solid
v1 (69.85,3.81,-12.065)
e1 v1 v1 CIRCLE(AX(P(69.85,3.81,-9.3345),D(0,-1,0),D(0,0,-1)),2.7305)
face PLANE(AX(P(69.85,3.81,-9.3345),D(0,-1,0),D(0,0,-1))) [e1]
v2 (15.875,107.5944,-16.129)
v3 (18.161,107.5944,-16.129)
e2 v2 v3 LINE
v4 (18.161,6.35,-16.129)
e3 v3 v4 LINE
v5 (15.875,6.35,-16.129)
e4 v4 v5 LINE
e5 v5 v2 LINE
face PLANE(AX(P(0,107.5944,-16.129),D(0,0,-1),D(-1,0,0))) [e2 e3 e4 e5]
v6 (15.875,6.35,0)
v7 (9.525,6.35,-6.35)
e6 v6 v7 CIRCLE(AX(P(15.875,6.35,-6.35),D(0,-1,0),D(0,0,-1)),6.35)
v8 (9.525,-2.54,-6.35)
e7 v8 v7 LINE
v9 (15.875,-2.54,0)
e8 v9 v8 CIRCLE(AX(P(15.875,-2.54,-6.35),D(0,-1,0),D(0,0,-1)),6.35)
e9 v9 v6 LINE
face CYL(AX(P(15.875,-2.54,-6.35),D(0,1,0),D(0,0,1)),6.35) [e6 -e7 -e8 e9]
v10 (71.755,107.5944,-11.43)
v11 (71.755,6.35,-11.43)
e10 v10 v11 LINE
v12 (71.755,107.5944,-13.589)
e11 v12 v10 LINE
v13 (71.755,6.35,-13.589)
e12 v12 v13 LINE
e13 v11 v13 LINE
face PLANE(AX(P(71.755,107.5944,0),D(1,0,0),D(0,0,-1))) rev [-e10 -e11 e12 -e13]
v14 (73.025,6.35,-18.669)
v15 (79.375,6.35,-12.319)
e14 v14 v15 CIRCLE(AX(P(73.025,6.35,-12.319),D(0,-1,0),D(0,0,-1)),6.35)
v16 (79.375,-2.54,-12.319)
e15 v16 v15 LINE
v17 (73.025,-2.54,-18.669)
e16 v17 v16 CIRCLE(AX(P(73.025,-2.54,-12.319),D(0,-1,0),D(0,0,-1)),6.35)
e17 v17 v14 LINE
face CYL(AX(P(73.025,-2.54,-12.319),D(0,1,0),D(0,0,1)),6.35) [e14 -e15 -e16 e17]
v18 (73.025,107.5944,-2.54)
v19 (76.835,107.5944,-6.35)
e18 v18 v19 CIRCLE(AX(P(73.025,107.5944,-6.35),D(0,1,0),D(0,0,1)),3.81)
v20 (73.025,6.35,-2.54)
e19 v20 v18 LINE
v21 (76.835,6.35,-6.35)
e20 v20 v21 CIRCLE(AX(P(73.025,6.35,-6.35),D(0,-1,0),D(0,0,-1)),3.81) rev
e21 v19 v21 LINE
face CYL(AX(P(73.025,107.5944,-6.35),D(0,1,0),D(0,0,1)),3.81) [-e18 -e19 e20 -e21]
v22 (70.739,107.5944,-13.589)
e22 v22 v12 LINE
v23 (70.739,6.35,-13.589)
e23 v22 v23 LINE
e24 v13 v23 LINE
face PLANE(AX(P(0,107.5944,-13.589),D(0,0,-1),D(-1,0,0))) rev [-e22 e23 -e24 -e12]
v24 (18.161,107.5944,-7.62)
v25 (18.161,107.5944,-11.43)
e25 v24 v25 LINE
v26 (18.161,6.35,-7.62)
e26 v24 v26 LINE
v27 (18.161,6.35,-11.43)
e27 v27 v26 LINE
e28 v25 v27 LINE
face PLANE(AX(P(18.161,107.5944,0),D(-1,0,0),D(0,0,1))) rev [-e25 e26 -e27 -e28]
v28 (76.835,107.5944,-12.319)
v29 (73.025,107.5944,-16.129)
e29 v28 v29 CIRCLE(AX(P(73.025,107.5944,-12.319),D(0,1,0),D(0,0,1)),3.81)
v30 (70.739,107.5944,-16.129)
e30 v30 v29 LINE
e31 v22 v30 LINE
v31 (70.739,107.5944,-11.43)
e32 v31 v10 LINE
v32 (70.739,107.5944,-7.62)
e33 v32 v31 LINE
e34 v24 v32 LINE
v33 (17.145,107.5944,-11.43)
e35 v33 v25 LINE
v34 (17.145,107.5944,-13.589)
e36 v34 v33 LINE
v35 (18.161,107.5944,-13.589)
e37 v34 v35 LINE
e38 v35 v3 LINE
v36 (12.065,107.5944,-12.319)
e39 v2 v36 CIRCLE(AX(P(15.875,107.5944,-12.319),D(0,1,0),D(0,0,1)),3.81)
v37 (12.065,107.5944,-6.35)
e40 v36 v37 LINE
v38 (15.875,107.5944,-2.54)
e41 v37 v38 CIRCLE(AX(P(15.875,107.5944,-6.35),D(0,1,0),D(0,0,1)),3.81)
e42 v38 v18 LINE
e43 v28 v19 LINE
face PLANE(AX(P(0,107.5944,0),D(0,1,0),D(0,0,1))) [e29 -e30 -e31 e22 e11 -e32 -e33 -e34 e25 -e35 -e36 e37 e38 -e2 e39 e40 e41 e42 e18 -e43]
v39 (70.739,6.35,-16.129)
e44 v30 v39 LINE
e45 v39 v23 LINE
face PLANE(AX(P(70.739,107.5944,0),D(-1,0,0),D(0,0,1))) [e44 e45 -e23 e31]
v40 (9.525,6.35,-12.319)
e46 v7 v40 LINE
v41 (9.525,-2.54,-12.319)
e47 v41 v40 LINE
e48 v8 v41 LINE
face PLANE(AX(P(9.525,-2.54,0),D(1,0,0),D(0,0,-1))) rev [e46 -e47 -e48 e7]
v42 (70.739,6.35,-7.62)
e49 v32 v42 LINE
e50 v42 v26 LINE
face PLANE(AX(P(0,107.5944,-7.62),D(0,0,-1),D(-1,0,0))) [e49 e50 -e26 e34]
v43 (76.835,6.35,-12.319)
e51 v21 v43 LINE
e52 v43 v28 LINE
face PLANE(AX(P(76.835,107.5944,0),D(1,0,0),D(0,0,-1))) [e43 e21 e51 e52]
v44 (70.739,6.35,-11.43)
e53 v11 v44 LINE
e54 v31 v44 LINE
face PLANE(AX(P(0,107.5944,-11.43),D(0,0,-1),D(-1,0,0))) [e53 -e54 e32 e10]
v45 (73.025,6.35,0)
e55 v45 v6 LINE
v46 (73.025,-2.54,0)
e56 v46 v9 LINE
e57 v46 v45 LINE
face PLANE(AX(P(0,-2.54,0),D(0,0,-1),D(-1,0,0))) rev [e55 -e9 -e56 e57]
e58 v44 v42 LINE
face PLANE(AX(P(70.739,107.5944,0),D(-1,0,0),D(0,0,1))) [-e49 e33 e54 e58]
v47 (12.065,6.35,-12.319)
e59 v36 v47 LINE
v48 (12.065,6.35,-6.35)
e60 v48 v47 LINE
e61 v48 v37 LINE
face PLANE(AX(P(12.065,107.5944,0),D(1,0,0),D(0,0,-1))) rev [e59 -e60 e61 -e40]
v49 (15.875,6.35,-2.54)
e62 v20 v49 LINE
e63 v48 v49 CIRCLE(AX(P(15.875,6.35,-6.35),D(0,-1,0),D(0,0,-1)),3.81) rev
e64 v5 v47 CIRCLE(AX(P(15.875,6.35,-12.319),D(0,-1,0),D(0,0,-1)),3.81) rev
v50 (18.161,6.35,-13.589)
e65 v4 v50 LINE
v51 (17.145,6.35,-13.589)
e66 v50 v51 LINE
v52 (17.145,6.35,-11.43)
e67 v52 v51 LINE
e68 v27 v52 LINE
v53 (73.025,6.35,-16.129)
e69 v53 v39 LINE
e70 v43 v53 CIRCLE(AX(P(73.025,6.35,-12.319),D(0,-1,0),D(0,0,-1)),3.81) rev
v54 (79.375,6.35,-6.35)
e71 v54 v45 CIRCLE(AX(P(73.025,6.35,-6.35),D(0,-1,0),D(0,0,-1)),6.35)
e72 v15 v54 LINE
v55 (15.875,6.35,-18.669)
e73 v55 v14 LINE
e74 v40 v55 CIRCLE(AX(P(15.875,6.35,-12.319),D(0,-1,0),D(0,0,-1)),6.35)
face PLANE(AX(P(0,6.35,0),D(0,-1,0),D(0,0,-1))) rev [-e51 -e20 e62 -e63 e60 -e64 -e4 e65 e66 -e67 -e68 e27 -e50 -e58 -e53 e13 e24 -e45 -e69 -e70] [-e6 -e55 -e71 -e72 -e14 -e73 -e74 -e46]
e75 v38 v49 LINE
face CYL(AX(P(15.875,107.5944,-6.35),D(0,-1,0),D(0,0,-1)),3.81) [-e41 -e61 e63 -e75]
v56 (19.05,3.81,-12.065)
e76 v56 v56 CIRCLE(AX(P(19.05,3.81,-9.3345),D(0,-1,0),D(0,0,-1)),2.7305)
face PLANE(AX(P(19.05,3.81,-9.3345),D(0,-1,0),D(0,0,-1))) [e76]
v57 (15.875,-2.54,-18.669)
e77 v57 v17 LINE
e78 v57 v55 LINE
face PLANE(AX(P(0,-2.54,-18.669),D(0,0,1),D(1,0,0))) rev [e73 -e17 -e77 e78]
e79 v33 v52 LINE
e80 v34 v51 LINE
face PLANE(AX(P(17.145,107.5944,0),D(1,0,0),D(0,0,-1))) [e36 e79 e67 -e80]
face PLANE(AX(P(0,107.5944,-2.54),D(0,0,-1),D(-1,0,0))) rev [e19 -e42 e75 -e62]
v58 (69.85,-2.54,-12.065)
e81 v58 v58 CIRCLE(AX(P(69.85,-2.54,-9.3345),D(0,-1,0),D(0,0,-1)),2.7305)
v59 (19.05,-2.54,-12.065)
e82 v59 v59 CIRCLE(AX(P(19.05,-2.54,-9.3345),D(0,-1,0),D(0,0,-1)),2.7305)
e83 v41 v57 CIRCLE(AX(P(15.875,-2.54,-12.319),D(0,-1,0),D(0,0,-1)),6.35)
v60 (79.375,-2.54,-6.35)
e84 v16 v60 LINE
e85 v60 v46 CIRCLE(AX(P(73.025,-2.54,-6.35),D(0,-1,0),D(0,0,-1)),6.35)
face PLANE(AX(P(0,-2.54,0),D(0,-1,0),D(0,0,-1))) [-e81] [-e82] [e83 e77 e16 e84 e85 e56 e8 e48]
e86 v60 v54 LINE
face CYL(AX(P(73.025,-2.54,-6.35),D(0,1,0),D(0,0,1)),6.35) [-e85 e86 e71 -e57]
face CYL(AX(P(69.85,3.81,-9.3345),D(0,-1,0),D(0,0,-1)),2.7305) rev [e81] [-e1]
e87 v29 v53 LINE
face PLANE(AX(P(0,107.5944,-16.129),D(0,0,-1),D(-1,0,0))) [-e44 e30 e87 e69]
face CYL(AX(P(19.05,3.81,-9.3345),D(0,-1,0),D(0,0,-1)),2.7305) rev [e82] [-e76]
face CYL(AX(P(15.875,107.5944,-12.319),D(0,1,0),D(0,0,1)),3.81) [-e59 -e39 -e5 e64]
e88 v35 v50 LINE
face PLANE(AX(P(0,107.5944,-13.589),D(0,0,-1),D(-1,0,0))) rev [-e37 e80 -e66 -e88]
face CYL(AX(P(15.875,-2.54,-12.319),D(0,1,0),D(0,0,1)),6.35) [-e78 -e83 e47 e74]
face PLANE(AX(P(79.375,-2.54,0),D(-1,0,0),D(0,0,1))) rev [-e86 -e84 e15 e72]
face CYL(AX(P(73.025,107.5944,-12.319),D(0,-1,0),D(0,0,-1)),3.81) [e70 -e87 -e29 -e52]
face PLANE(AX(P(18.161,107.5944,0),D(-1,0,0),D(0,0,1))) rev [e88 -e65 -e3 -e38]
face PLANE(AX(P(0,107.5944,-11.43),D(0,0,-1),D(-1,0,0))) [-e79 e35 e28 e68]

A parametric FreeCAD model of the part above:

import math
import FreeCAD as App
import Part
import Sketcher
from FreeCAD import Vector
Q = App.Units.Quantity


def edges_at(feature, points):
    """Names of the edges that pass closest to the given points."""
    edges = feature.Shape.Edges
    near = lambda p: min(range(len(edges)), key=lambda i: edges[i].distToShape(Part.Vertex(*p))[0])
    return sorted({f"Edge{near(p) + 1}" for p in points})

doc = App.newDocument("Part")
params = doc.addObject("Spreadsheet::Sheet", "Params")
for row, (alias, value) in enumerate([
    ("sketch1_height", "6 in"),
    ("sketch1_width", "3.5 in"),
    ("pad1_length", "0.236 in"),
    ("sketch2_diameter", "0.215 in"),
    ("sketch3_height", "0.1 in"),
    ("sketch3_width", "0.24 in"),
    ("sketch3_width2", "2.55 in"),
    ("sketch3_width3", "0.04 in"),
    ("sketch3_height2", "0.15 in"),
    ("pad2_length", "4 in"),
    ("fillet_radius", "0.15 in"),
    ("sketch4_height", "6 in"),
    ("sketch4_width", "0.1 in"),
    ("sketch5_height", "6 in"),
    ("sketch5_width", "3.4 in"),
    ("pocket3_length", "0.25 in"),
    ("sketch6_radius", "0.25 in"),
    ("sketch6_width", "2.25 in"),
    ("sketch6_height", "0.235 in"),
    ("pad3_length", "0.35 in"),
    ("sketch7_diameter", "0.215 in"),
    ("pocket4_length", "0.25 in"),
], start=1):
    params.set(f"A{row}", alias)
    params.set(f"B{row}", "=" + value)
    params.setAlias(f"B{row}", alias)

body = doc.addObject("PartDesign::Body", "Body")

# Sketch on XZ plane
sketch1 = body.newObject("Sketcher::SketchObject", "Sketch")
sketch1.AttachmentSupport = (doc.getObject("XZ_Plane"), [""])
sketch1.MapMode = "FlatFace"
sketch1.addGeometry(Part.LineSegment(Vector(0, -152, 0), Vector(0, 0, 0)), False)
sketch1.addGeometry(Part.LineSegment(Vector(0, 0, 0), Vector(89, 0, 0)), False)
sketch1.addGeometry(Part.LineSegment(Vector(89, 0, 0), Vector(89, -152, 0)), False)
sketch1.addGeometry(Part.LineSegment(Vector(89, -152, 0), Vector(0, -152, 0)), False)
sketch1.addConstraint(Sketcher.Constraint("Coincident", 0, 2, 1, 1))
sketch1.addConstraint(Sketcher.Constraint("Coincident", 1, 2, 2, 1))
sketch1.addConstraint(Sketcher.Constraint("Coincident", 2, 2, 3, 1))
sketch1.addConstraint(Sketcher.Constraint("Coincident", 3, 2, 0, 1))
sketch1.addConstraint(Sketcher.Constraint("Vertical", 0))
sketch1.addConstraint(Sketcher.Constraint("Horizontal", 1))
sketch1.addConstraint(Sketcher.Constraint("Vertical", 2))
sketch1.addConstraint(Sketcher.Constraint("Horizontal", 3))
sketch1.addConstraint(Sketcher.Constraint("Coincident", 0, 2, -1, 1))
sketch1.addConstraint(Sketcher.Constraint("DistanceY", 0, 1, 0, 2, Q("6 in")))
sketch1.addConstraint(Sketcher.Constraint("DistanceX", 1, 1, 1, 2, Q("3.5 in")))
sketch1.setExpression("Constraints[9]", "Params.sketch1_height")
sketch1.setExpression("Constraints[10]", "Params.sketch1_width")
pad1 = body.newObject("PartDesign::Pad", "Pad")
pad1.Profile = sketch1
pad1.setExpression("Length", "Params.pad1_length")
pad1.Reversed = True

# Sketch on XZ plane
sketch2 = body.newObject("Sketcher::SketchObject", "Sketch001")
sketch2.AttachmentSupport = (doc.getObject("XZ_Plane"), [""])
sketch2.MapMode = "FlatFace"
sketch2.AttachmentOffset = App.Placement(Vector(0, 0, -0.236 * 25.4), App.Rotation())
sketch2.addGeometry(Part.Circle(Vector(45.7, -109.9, 0), Vector(0, 0, 1), 2.7), False)
sketch2.addGeometry(Part.Circle(Vector(45.7, -33.7, 0), Vector(0, 0, 1), 2.7), False)
sketch2.addConstraint(Sketcher.Constraint("Equal", 0, 1))
sketch2.addConstraint(Sketcher.Constraint("Vertical", 0, 3, 1, 3))
sketch2.addConstraint(Sketcher.Constraint("Diameter", 0, Q("0.215 in")))
sketch2.addConstraint(Sketcher.Constraint("DistanceY", 0, 3, 1, 3, Q("3 in")))
sketch2.addConstraint(Sketcher.Constraint("DistanceX", -1, 1, 0, 3, Q("1.8 in")))
sketch2.addConstraint(Sketcher.Constraint("DistanceY", 0, 3, -1, 1, Q("109.871331 mm")))
sketch2.setExpression("Constraints[2]", "Params.sketch2_diameter")
pocket1 = body.newObject("PartDesign::Pocket", "Pocket")
pocket1.Profile = sketch2
pocket1.Type = "ThroughAll"
pocket1.Midplane = True

# Sketch on XZ plane
sketch3 = body.newObject("Sketcher::SketchObject", "Sketch002")
sketch3.AttachmentSupport = (doc.getObject("XZ_Plane"), [""])
sketch3.MapMode = "FlatFace"
sketch3.AttachmentOffset = App.Placement(Vector(0, 0, -0.236 * 25.4), App.Rotation())
sketch3.addGeometry(Part.LineSegment(Vector(18.2, -16.1, 0), Vector(12.1, -16.1, 0)), False)
sketch3.addGeometry(Part.LineSegment(Vector(12.1, -16.1, 0), Vector(12.1, -2.5, 0)), False)
sketch3.addGeometry(Part.LineSegment(Vector(12.1, -2.5, 0), Vector(76.8, -2.5, 0)), False)
sketch3.addGeometry(Part.LineSegment(Vector(76.8, -2.5, 0), Vector(76.8, -16.1, 0)), False)
sketch3.addGeometry(Part.LineSegment(Vector(76.8, -16.1, 0), Vector(70.7, -16.1, 0)), False)
sketch3.addGeometry(Part.LineSegment(Vector(70.7, -16.1, 0), Vector(70.7, -13.6, 0)), False)
sketch3.addGeometry(Part.LineSegment(Vector(70.7, -13.6, 0), Vector(71.8, -13.6, 0)), False)
sketch3.addGeometry(Part.LineSegment(Vector(71.8, -13.6, 0), Vector(71.8, -11.4, 0)), False)
sketch3.addGeometry(Part.LineSegment(Vector(71.8, -11.4, 0), Vector(70.7, -11.4, 0)), False)
sketch3.addGeometry(Part.LineSegment(Vector(70.7, -11.4, 0), Vector(70.7, -7.6, 0)), False)
sketch3.addGeometry(Part.LineSegment(Vector(70.7, -7.6, 0), Vector(18.2, -7.6, 0)), False)
sketch3.addGeometry(Part.LineSegment(Vector(18.2, -7.6, 0), Vector(18.2, -11.4, 0)), False)
sketch3.addGeometry(Part.LineSegment(Vector(18.2, -11.4, 0), Vector(17.1, -11.4, 0)), False)
sketch3.addGeometry(Part.LineSegment(Vector(17.1, -11.4, 0), Vector(17.1, -13.6, 0)), False)
sketch3.addGeometry(Part.LineSegment(Vector(17.1, -13.6, 0), Vector(18.2, -13.6, 0)), False)
sketch3.addGeometry(Part.LineSegment(Vector(18.2, -13.6, 0), Vector(18.2, -16.1, 0)), False)
sketch3.addConstraint(Sketcher.Constraint("Coincident", 0, 2, 1, 1))
sketch3.addConstraint(Sketcher.Constraint("Coincident", 1, 2, 2, 1))
sketch3.addConstraint(Sketcher.Constraint("Coincident", 2, 2, 3, 1))
sketch3.addConstraint(Sketcher.Constraint("Coincident", 3, 2, 4, 1))
sketch3.addConstraint(Sketcher.Constraint("Coincident", 4, 2, 5, 1))
sketch3.addConstraint(Sketcher.Constraint("Coincident", 5, 2, 6, 1))
sketch3.addConstraint(Sketcher.Constraint("Coincident", 6, 2, 7, 1))
sketch3.addConstraint(Sketcher.Constraint("Coincident", 7, 2, 8, 1))
sketch3.addConstraint(Sketcher.Constraint("Coincident", 8, 2, 9, 1))
sketch3.addConstraint(Sketcher.Constraint("Coincident", 9, 2, 10, 1))
sketch3.addConstraint(Sketcher.Constraint("Coincident", 10, 2, 11, 1))
sketch3.addConstraint(Sketcher.Constraint("Coincident", 11, 2, 12, 1))
sketch3.addConstraint(Sketcher.Constraint("Coincident", 12, 2, 13, 1))
sketch3.addConstraint(Sketcher.Constraint("Coincident", 13, 2, 14, 1))
sketch3.addConstraint(Sketcher.Constraint("Coincident", 14, 2, 15, 1))
sketch3.addConstraint(Sketcher.Constraint("Coincident", 15, 2, 0, 1))
sketch3.addConstraint(Sketcher.Constraint("Horizontal", 0))
sketch3.addConstraint(Sketcher.Constraint("Vertical", 1))
sketch3.addConstraint(Sketcher.Constraint("Horizontal", 2))
sketch3.addConstraint(Sketcher.Constraint("Vertical", 3))
sketch3.addConstraint(Sketcher.Constraint("Horizontal", 4))
sketch3.addConstraint(Sketcher.Constraint("Vertical", 5))
sketch3.addConstraint(Sketcher.Constraint("Horizontal", 6))
sketch3.addConstraint(Sketcher.Constraint("Vertical", 7))
sketch3.addConstraint(Sketcher.Constraint("Horizontal", 8))
sketch3.addConstraint(Sketcher.Constraint("Vertical", 9))
sketch3.addConstraint(Sketcher.Constraint("Horizontal", 10))
sketch3.addConstraint(Sketcher.Constraint("Vertical", 11))
sketch3.addConstraint(Sketcher.Constraint("Horizontal", 12))
sketch3.addConstraint(Sketcher.Constraint("Vertical", 13))
sketch3.addConstraint(Sketcher.Constraint("Horizontal", 14))
sketch3.addConstraint(Sketcher.Constraint("Vertical", 15))
sketch3.addConstraint(Sketcher.Constraint("Horizontal", 0, 2, 3, 2))
sketch3.addConstraint(Sketcher.Constraint("Horizontal", 8, 2, 11, 2))
sketch3.addConstraint(Sketcher.Constraint("Horizontal", 6, 2, 13, 2))
sketch3.addConstraint(Sketcher.Constraint("Vertical", 5, 2, 8, 2))
sketch3.addConstraint(Sketcher.Constraint("Vertical", 11, 2, 14, 2))
sketch3.addConstraint(Sketcher.Constraint("Equal", 0, 4))
sketch3.addConstraint(Sketcher.Constraint("Equal", 8, 12))
sketch3.addConstraint(Sketcher.Constraint("DistanceY", 5, 1, 5, 2, Q("0.1 in")))
sketch3.addConstraint(Sketcher.Constraint("DistanceX", 0, 2, 0, 1, Q("0.24 in")))
sketch3.addConstraint(Sketcher.Constraint("DistanceX", 2, 1, 2, 2, Q("2.55 in")))
sketch3.addConstraint(Sketcher.Constraint("DistanceX", 6, 1, 6, 2, Q("0.04 in")))
sketch3.addConstraint(Sketcher.Constraint("DistanceY", 9, 1, 9, 2, Q("0.15 in")))
sketch3.addConstraint(Sketcher.Constraint("DistanceY", 1, 2, -1, 1, Q("0.1 in")))
sketch3.addConstraint(Sketcher.Constraint("DistanceY", 9, 2, -1, 1, Q("0.3 in")))
sketch3.addConstraint(Sketcher.Constraint("DistanceY", 1, 1, 1, 2, Q("0.535 in")))
sketch3.addConstraint(Sketcher.Constraint("DistanceX", -1, 1, 0, 2, Q("0.475 in")))
sketch3.setExpression("Constraints[39]", "Params.sketch3_height")
sketch3.setExpression("Constraints[40]", "Params.sketch3_width")
sketch3.setExpression("Constraints[41]", "Params.sketch3_width2")
sketch3.setExpression("Constraints[42]", "Params.sketch3_width3")
sketch3.setExpression("Constraints[43]", "Params.sketch3_height2")
pad2 = body.newObject("PartDesign::Pad", "Pad001")
pad2.Profile = sketch3
pad2.setExpression("Length", "Params.pad2_length")
pad2.Reversed = True
doc.recompute()

fillet = body.newObject("PartDesign::Fillet", "Fillet")
fillet.Base = (pad2, edges_at(pad2, [
    (12.065, 56.794, -16.129),
    (12.065, 56.794, -2.54),
    (76.835, 56.794, -2.54),
    (76.835, 56.794, -16.129),
]))
fillet.setExpression("Radius", "Params.fillet_radius")

# Sketch on XZ plane
sketch4 = body.newObject("Sketcher::SketchObject", "Sketch003")
sketch4.AttachmentSupport = (doc.getObject("XZ_Plane"), [""])
sketch4.MapMode = "FlatFace"
sketch4.AttachmentOffset = App.Placement(Vector(0, 0, -0.236 * 25.4), App.Rotation())
sketch4.addGeometry(Part.LineSegment(Vector(0, -152.4, 0), Vector(0, 0, 0)), False)
sketch4.addGeometry(Part.LineSegment(Vector(0, 0, 0), Vector(2.5, 0, 0)), False)
sketch4.addGeometry(Part.LineSegment(Vector(2.5, 0, 0), Vector(2.5, -152.4, 0)), False)
sketch4.addGeometry(Part.LineSegment(Vector(2.5, -152.4, 0), Vector(0, -152.4, 0)), False)
sketch4.addConstraint(Sketcher.Constraint("Coincident", 0, 2, 1, 1))
sketch4.addConstraint(Sketcher.Constraint("Coincident", 1, 2, 2, 1))
sketch4.addConstraint(Sketcher.Constraint("Coincident", 2, 2, 3, 1))
sketch4.addConstraint(Sketcher.Constraint("Coincident", 3, 2, 0, 1))
sketch4.addConstraint(Sketcher.Constraint("Vertical", 0))
sketch4.addConstraint(Sketcher.Constraint("Horizontal", 1))
sketch4.addConstraint(Sketcher.Constraint("Vertical", 2))
sketch4.addConstraint(Sketcher.Constraint("Horizontal", 3))
sketch4.addConstraint(Sketcher.Constraint("Coincident", 0, 2, -1, 1))
sketch4.addConstraint(Sketcher.Constraint("DistanceY", 0, 1, 0, 2, Q("6 in")))
sketch4.addConstraint(Sketcher.Constraint("DistanceX", 1, 1, 1, 2, Q("0.1 in")))
sketch4.setExpression("Constraints[9]", "Params.sketch4_height")
sketch4.setExpression("Constraints[10]", "Params.sketch4_width")
pocket2 = body.newObject("PartDesign::Pocket", "Pocket001")
pocket2.Profile = sketch4
pocket2.Type = "ThroughAll"
pocket2.Midplane = True

# Sketch on XZ plane
sketch5 = body.newObject("Sketcher::SketchObject", "Sketch004")
sketch5.AttachmentSupport = (doc.getObject("XZ_Plane"), [""])
sketch5.MapMode = "FlatFace"
sketch5.addGeometry(Part.LineSegment(Vector(3, 0, 0), Vector(3, -152, 0)), False)
sketch5.addGeometry(Part.LineSegment(Vector(3, -152, 0), Vector(89, -152, 0)), False)
sketch5.addGeometry(Part.LineSegment(Vector(89, -152, 0), Vector(89, 0, 0)), False)
sketch5.addGeometry(Part.LineSegment(Vector(89, 0, 0), Vector(3, 0, 0)), False)
sketch5.addConstraint(Sketcher.Constraint("Coincident", 0, 2, 1, 1))
sketch5.addConstraint(Sketcher.Constraint("Coincident", 1, 2, 2, 1))
sketch5.addConstraint(Sketcher.Constraint("Coincident", 2, 2, 3, 1))
sketch5.addConstraint(Sketcher.Constraint("Coincident", 3, 2, 0, 1))
sketch5.addConstraint(Sketcher.Constraint("Vertical", 0))
sketch5.addConstraint(Sketcher.Constraint("Horizontal", 1))
sketch5.addConstraint(Sketcher.Constraint("Vertical", 2))
sketch5.addConstraint(Sketcher.Constraint("Horizontal", 3))
sketch5.addConstraint(Sketcher.Constraint("PointOnObject", 2, 2, -1))
sketch5.addConstraint(Sketcher.Constraint("DistanceY", 0, 2, 0, 1, Q("6 in")))
sketch5.addConstraint(Sketcher.Constraint("DistanceX", 1, 1, 1, 2, Q("3.4 in")))
sketch5.addConstraint(Sketcher.Constraint("DistanceX", -1, 1, 0, 2, Q("0.1 in")))
sketch5.setExpression("Constraints[9]", "Params.sketch5_height")
sketch5.setExpression("Constraints[10]", "Params.sketch5_width")
pocket3 = body.newObject("PartDesign::Pocket", "Pocket002")
pocket3.Profile = sketch5
pocket3.setExpression("Length", "Params.pocket3_length")

# Sketch on XZ plane
sketch6 = body.newObject("Sketcher::SketchObject", "Sketch005")
sketch6.AttachmentSupport = (doc.getObject("XZ_Plane"), [""])
sketch6.MapMode = "FlatFace"
sketch6.AttachmentOffset = App.Placement(Vector(0, 0, -0.25 * 25.4), App.Rotation())
sketch6.addGeometry(Part.LineSegment(Vector(10, -6, 0), Vector(10, -12, 0)), False)
sketch6.addGeometry(Part.ArcOfCircle(Part.Circle(Vector(16, -12, 0), Vector(0, 0, 1), 6), math.radians(180), math.radians(270)), False)
sketch6.addGeometry(Part.LineSegment(Vector(16, -19, 0), Vector(73, -19, 0)), False)
sketch6.addGeometry(Part.ArcOfCircle(Part.Circle(Vector(73, -12, 0), Vector(0, 0, 1), 6), math.radians(-90), math.radians(0)), False)
sketch6.addGeometry(Part.LineSegment(Vector(79, -12, 0), Vector(79, -6, 0)), False)
sketch6.addGeometry(Part.ArcOfCircle(Part.Circle(Vector(73, -6, 0), Vector(0, 0, 1), 6), math.radians(0), math.radians(90)), False)
sketch6.addGeometry(Part.LineSegment(Vector(73, 0, 0), Vector(16, 0, 0)), False)
sketch6.addGeometry(Part.ArcOfCircle(Part.Circle(Vector(16, -6, 0), Vector(0, 0, 1), 6), math.radians(90), math.radians(180)), False)
sketch6.addConstraint(Sketcher.Constraint("Tangent", 0, 2, 1, 1))
sketch6.addConstraint(Sketcher.Constraint("Tangent", 1, 2, 2, 1))
sketch6.addConstraint(Sketcher.Constraint("Tangent", 2, 2, 3, 1))
sketch6.addConstraint(Sketcher.Constraint("Tangent", 3, 2, 4, 1))
sketch6.addConstraint(Sketcher.Constraint("Tangent", 4, 2, 5, 1))
sketch6.addConstraint(Sketcher.Constraint("Tangent", 5, 2, 6, 1))
sketch6.addConstraint(Sketcher.Constraint("Tangent", 6, 2, 7, 1))
sketch6.addConstraint(Sketcher.Constraint("Tangent", 7, 2, 0, 1))
sketch6.addConstraint(Sketcher.Constraint("Vertical", 0))
sketch6.addConstraint(Sketcher.Constraint("Horizontal", 2))
sketch6.addConstraint(Sketcher.Constraint("Vertical", 4))
sketch6.addConstraint(Sketcher.Constraint("Horizontal", 6))
sketch6.addConstraint(Sketcher.Constraint("Equal", 1, 3))
sketch6.addConstraint(Sketcher.Constraint("Equal", 3, 5))
sketch6.addConstraint(Sketcher.Constraint("Equal", 5, 7))
sketch6.addConstraint(Sketcher.Constraint("PointOnObject", 5, 2, -1))
sketch6.addConstraint(Sketcher.Constraint("Radius", 1, Q("0.25 in")))
sketch6.addConstraint(Sketcher.Constraint("DistanceX", 2, 1, 2, 2, Q("2.25 in")))
sketch6.addConstraint(Sketcher.Constraint("DistanceY", 0, 2, 0, 1, Q("0.235 in")))
sketch6.addConstraint(Sketcher.Constraint("DistanceX", -1, 1, 1, 3, Q("0.625 in")))
sketch6.setExpression("Constraints[16]", "Params.sketch6_radius")
sketch6.setExpression("Constraints[17]", "Params.sketch6_width")
sketch6.setExpression("Constraints[18]", "Params.sketch6_height")
pad3 = body.newObject("PartDesign::Pad", "Pad002")
pad3.Profile = sketch6
pad3.setExpression("Length", "Params.pad3_length")

# Sketch on XZ plane
sketch7 = body.newObject("Sketcher::SketchObject", "Sketch006")
sketch7.AttachmentSupport = (doc.getObject("XZ_Plane"), [""])
sketch7.MapMode = "FlatFace"
sketch7.AttachmentOffset = App.Placement(Vector(0, 0, 0.1 * 25.4), App.Rotation())
sketch7.addGeometry(Part.Circle(Vector(19.1, -9.3, 0), Vector(0, 0, 1), 2.7), False)
sketch7.addGeometry(Part.Circle(Vector(69.8, -9.3, 0), Vector(0, 0, 1), 2.7), False)
sketch7.addConstraint(Sketcher.Constraint("Equal", 0, 1))
sketch7.addConstraint(Sketcher.Constraint("Horizontal", 0, 3, 1, 3))
sketch7.addConstraint(Sketcher.Constraint("Diameter", 0, Q("0.215 in")))
sketch7.addConstraint(Sketcher.Constraint("DistanceX", 0, 3, 1, 3, Q("2 in")))
sketch7.addConstraint(Sketcher.Constraint("DistanceX", -1, 1, 0, 3, Q("0.75 in")))
sketch7.addConstraint(Sketcher.Constraint("DistanceY", 0, 3, -1, 1, Q("0.3675 in")))
sketch7.setExpression("Constraints[2]", "Params.sketch7_diameter")
pocket4 = body.newObject("PartDesign::Pocket", "Pocket003")
pocket4.Profile = sketch7
pocket4.setExpression("Length", "Params.pocket4_length")

doc.recompute()
